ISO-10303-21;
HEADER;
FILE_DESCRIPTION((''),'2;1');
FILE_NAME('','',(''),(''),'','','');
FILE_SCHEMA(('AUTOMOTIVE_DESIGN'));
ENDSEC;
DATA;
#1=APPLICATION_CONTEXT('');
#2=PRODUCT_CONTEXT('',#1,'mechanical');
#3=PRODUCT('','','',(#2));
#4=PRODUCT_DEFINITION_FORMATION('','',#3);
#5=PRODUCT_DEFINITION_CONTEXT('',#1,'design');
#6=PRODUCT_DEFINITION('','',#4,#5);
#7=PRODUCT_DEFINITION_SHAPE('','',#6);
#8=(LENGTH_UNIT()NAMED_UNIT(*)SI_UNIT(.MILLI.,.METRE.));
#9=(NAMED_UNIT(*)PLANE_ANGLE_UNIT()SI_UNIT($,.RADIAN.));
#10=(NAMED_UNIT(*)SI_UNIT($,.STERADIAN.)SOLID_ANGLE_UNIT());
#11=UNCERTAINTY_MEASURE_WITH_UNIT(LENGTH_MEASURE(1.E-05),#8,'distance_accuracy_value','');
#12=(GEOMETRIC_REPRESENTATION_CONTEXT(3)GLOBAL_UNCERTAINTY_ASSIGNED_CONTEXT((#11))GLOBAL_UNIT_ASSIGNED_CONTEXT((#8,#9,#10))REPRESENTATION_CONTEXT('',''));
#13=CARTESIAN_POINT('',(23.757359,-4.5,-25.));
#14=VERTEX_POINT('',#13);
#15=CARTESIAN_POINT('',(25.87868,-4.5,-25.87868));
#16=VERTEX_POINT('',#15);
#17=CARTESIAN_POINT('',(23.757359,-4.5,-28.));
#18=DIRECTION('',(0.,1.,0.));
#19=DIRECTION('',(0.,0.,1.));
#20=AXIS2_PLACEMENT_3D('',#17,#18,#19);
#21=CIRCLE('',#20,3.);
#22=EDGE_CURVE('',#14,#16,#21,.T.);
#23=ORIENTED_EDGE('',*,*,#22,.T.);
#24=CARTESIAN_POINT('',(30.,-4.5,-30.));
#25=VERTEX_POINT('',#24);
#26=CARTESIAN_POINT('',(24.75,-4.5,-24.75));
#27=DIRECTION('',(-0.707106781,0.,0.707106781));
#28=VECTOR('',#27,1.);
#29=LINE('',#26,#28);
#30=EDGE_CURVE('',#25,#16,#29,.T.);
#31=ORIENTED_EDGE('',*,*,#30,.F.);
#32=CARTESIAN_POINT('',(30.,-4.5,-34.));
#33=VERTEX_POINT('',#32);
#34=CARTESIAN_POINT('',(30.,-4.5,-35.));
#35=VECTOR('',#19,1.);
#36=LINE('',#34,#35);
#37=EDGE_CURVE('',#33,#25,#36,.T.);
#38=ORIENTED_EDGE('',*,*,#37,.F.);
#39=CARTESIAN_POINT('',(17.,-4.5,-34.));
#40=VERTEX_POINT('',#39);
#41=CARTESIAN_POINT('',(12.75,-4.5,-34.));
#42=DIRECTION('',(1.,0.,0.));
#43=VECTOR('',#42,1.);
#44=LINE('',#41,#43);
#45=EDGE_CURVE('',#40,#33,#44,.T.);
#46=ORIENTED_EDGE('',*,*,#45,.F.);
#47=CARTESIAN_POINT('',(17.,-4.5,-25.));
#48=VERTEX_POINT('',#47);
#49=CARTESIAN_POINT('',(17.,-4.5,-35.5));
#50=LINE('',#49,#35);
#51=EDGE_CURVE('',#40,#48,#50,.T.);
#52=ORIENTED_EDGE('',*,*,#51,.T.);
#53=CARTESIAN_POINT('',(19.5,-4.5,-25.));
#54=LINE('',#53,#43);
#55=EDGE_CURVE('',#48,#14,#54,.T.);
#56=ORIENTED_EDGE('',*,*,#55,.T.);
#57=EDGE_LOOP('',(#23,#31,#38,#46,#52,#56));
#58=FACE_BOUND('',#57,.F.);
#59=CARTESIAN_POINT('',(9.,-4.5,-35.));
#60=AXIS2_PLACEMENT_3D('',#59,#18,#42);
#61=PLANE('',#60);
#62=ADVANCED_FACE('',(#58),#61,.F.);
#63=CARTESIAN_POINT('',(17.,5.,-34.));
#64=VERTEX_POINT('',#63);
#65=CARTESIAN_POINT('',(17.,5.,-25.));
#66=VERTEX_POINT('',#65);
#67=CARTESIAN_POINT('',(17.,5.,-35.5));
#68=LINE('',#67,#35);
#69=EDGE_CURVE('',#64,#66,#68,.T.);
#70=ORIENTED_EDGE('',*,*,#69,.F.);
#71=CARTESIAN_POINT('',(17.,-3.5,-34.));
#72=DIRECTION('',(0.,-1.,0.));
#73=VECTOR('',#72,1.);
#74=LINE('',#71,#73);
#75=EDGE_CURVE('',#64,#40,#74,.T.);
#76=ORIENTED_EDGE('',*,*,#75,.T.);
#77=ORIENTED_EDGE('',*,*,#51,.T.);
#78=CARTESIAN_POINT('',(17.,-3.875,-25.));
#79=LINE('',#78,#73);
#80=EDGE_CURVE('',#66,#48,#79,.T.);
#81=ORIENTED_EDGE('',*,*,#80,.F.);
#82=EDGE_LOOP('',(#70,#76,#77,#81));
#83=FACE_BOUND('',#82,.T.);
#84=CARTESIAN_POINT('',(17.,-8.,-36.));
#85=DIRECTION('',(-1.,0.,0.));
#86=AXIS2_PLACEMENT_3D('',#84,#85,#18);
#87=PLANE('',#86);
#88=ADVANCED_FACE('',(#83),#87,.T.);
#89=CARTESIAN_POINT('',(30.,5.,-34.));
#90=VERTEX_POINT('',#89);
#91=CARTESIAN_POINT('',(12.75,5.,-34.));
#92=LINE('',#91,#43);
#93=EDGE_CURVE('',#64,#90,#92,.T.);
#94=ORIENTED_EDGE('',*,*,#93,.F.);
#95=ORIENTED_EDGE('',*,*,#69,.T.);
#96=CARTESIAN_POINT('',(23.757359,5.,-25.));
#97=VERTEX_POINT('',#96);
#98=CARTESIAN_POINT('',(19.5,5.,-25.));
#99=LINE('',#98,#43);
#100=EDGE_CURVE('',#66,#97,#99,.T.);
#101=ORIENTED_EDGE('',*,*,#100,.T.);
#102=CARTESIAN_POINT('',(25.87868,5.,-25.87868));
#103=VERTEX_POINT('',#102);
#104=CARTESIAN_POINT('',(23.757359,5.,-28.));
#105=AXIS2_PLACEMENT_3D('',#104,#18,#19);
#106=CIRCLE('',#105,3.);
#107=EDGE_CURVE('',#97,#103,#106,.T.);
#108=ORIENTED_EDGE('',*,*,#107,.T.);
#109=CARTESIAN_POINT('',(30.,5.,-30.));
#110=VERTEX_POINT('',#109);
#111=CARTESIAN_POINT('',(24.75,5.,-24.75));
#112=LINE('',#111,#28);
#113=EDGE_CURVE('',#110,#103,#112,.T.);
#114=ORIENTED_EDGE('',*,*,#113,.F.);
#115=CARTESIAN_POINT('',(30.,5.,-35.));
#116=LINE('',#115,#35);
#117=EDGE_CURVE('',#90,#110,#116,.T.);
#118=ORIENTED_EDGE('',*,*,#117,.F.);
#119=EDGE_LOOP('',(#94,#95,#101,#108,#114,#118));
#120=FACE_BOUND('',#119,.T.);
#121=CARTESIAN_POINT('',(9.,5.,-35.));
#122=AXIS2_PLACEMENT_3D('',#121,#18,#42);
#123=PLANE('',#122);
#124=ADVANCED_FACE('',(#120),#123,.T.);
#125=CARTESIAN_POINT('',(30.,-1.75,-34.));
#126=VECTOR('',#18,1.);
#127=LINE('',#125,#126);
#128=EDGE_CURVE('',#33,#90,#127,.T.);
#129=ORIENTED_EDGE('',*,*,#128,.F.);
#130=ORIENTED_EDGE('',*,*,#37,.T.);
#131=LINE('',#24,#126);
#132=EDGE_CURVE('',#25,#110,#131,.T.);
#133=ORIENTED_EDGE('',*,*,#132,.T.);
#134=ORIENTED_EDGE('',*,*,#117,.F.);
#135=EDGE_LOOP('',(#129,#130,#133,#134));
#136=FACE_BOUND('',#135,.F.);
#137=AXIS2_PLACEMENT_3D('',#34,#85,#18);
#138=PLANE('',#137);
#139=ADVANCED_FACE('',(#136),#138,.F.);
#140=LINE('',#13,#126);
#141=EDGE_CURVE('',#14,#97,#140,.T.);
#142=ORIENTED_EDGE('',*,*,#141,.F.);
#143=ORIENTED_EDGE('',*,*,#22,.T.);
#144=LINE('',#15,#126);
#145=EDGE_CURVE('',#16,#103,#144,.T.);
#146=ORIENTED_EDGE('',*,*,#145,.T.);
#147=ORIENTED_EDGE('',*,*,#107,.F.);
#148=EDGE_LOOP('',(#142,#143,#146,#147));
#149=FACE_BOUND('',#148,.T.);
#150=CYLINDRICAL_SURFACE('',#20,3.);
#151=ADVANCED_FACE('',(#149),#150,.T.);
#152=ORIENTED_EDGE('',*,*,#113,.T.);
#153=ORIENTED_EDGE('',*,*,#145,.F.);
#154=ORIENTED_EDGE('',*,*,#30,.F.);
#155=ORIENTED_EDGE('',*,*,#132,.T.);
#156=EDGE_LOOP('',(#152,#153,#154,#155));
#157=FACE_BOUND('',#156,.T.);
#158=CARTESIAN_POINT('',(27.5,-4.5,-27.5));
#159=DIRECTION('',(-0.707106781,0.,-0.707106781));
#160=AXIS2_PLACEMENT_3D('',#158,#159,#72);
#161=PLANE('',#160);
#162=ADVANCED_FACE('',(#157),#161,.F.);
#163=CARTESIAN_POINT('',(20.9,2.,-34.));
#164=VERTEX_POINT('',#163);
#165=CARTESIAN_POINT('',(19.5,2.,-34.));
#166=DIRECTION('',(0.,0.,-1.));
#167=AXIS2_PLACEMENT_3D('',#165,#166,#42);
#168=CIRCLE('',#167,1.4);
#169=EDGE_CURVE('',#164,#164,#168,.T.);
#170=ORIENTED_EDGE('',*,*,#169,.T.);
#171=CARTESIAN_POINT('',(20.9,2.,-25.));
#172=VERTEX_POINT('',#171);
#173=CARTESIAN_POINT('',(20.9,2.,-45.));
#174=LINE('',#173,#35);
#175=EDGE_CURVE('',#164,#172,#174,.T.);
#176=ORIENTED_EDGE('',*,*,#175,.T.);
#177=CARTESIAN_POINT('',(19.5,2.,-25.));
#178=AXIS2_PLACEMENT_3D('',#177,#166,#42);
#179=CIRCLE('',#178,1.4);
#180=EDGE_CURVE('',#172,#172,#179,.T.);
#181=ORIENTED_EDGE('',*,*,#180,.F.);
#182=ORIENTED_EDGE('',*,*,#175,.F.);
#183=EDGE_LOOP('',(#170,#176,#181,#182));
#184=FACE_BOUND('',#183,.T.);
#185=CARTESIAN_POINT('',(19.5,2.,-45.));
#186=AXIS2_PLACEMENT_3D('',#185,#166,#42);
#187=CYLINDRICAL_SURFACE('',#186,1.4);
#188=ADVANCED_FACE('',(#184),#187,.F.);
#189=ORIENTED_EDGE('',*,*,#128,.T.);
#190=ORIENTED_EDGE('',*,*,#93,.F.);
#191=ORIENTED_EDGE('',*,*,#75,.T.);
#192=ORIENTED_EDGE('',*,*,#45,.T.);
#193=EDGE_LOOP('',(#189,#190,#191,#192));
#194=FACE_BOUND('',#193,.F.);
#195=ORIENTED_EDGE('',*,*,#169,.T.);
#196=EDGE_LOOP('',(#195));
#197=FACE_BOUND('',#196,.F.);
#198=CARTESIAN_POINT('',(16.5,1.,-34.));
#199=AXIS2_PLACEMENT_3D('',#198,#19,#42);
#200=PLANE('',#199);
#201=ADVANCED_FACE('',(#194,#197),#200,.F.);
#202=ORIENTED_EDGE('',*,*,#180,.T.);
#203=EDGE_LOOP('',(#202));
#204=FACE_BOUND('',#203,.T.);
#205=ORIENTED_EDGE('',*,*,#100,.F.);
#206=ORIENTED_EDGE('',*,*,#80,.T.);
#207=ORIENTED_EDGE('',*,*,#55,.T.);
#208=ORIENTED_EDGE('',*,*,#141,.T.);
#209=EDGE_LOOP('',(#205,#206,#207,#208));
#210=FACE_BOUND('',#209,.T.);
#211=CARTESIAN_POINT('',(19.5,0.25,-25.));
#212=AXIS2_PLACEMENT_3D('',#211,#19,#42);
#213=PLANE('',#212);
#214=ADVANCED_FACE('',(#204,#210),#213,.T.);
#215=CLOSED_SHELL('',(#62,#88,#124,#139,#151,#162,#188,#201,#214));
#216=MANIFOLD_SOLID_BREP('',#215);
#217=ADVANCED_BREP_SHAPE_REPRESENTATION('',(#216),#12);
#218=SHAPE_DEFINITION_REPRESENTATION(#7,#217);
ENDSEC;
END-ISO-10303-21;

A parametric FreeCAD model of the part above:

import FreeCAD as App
import Part
import Sketcher

V = App.Vector
Q = App.Units.Quantity


def edges_at(feature, points):
    """Names of the edges that pass closest to the given points."""
    edges = feature.Shape.Edges
    near = lambda p: min(range(len(edges)), key=lambda i: edges[i].distToShape(Part.Vertex(*p))[0])
    return sorted({f"Edge{near(p) + 1}" for p in points})

doc = App.newDocument("Part")
params = doc.addObject("Spreadsheet::Sheet", "Params")
for row, (alias, value) in enumerate([
    ("sketch1_width", "17 mm"),
    ("sketch1_height", "18 mm"),
    ("pad1_length", "16 mm"),
    ("sketch2_diameter", "2.8 mm"),
    ("pad2_length", "30 mm"),
    ("sketch3_width", "33 mm"),
    ("sketch3_height", "16 mm"),
    ("pad3_length", "10 mm"),
    ("sketch4_width", "21 mm"),
    ("sketch4_height", "9.5 mm"),
    ("pad4_length", "10 mm"),
    ("chamfer_size", "5 mm"),
    ("fillet_radius", "3 mm"),
], start=1):
    params.set(f"A{row}", alias)
    params.set(f"B{row}", "=" + value)
    params.setAlias(f"B{row}", alias)

body = doc.addObject("PartDesign::Body", "Body")

# Sketch on XY plane
sketch1 = doc.addObject("Sketcher::SketchObject", "Sketch")
body.addObject(sketch1)
sketch1.AttachmentSupport = (doc.XY_Plane, [""])
sketch1.MapMode = "FlatFace"
sketch1.AttachmentOffset = App.Placement(V(0, 0, -36), App.Rotation())
sketch1.addGeometry([
    Part.LineSegment(V(0, 10, 0), V(0, -8, 0)),
    Part.LineSegment(V(0, -8, 0), V(17, -8, 0)),
    Part.LineSegment(V(17, -8, 0), V(17, 10, 0)),
    Part.LineSegment(V(17, 10, 0), V(0, 10, 0)),
], False)
sketch1.addConstraint([
    Sketcher.Constraint("Coincident", 0, 2, 1, 1),
    Sketcher.Constraint("Coincident", 1, 2, 2, 1),
    Sketcher.Constraint("Coincident", 2, 2, 3, 1),
    Sketcher.Constraint("Coincident", 3, 2, 0, 1),
    Sketcher.Constraint("Vertical", 0),
    Sketcher.Constraint("Horizontal", 1),
    Sketcher.Constraint("Vertical", 2),
    Sketcher.Constraint("Horizontal", 3),
    Sketcher.Constraint("PointOnObject", 0, 2, -2),
    Sketcher.Constraint("DistanceX", 1, 1, 1, 2, Q("17 mm")),
    Sketcher.Constraint("DistanceY", 0, 2, 0, 1, Q("18 mm")),
    Sketcher.Constraint("DistanceY", 0, 2, -1, 1, Q("8 mm")),
])
sketch1.setExpression("Constraints[9]", "Params.sketch1_width")
sketch1.setExpression("Constraints[10]", "Params.sketch1_height")
pad1 = doc.addObject("PartDesign::Pad", "Pad")
body.addObject(pad1)
pad1.Profile = sketch1
pad1.setExpression("Length", "Params.pad1_length")
body2 = doc.addObject("PartDesign::Body", "Body001")

# Sketch on XY plane
sketch2 = doc.addObject("Sketcher::SketchObject", "Sketch001")
body2.addObject(sketch2)
sketch2.AttachmentSupport = (doc.getObject("XY_Plane001"), [""])
sketch2.MapMode = "FlatFace"
sketch2.AttachmentOffset = App.Placement(V(0, 0, -45), App.Rotation())
sketch2.addGeometry(Part.Circle(V(19.5, 2, 0), V(0, 0, 1), 1.4), False)
sketch2.addConstraint([
    Sketcher.Constraint("Diameter", 0, Q("2.8 mm")),
    Sketcher.Constraint("DistanceY", -1, 1, 0, 3, Q("2 mm")),
    Sketcher.Constraint("DistanceX", -1, 1, 0, 3, Q("19.5 mm")),
])
sketch2.setExpression("Constraints[0]", "Params.sketch2_diameter")
pad2 = doc.addObject("PartDesign::Pad", "Pad001")
body2.addObject(pad2)
pad2.Profile = sketch2
pad2.setExpression("Length", "Params.pad2_length")
body3 = doc.addObject("PartDesign::Body", "Body002")

# Sketch on XY plane
sketch3 = doc.addObject("Sketcher::SketchObject", "Sketch002")
body3.addObject(sketch3)
sketch3.AttachmentSupport = (doc.getObject("XY_Plane002"), [""])
sketch3.MapMode = "FlatFace"
sketch3.AttachmentOffset = App.Placement(V(0, 0, -44), App.Rotation())
sketch3.addGeometry([
    Part.LineSegment(V(0, 9, 0), V(0, -7, 0)),
    Part.LineSegment(V(0, -7, 0), V(33, -7, 0)),
    Part.LineSegment(V(33, -7, 0), V(33, 9, 0)),
    Part.LineSegment(V(33, 9, 0), V(0, 9, 0)),
], False)
sketch3.addConstraint([
    Sketcher.Constraint("Coincident", 0, 2, 1, 1),
    Sketcher.Constraint("Coincident", 1, 2, 2, 1),
    Sketcher.Constraint("Coincident", 2, 2, 3, 1),
    Sketcher.Constraint("Coincident", 3, 2, 0, 1),
    Sketcher.Constraint("Vertical", 0),
    Sketcher.Constraint("Horizontal", 1),
    Sketcher.Constraint("Vertical", 2),
    Sketcher.Constraint("Horizontal", 3),
    Sketcher.Constraint("PointOnObject", 0, 2, -2),
    Sketcher.Constraint("DistanceX", 1, 1, 1, 2, Q("33 mm")),
    Sketcher.Constraint("DistanceY", 0, 2, 0, 1, Q("16 mm")),
    Sketcher.Constraint("DistanceY", 0, 2, -1, 1, Q("7 mm")),
])
sketch3.setExpression("Constraints[9]", "Params.sketch3_width")
sketch3.setExpression("Constraints[10]", "Params.sketch3_height")
pad3 = doc.addObject("PartDesign::Pad", "Pad002")
body3.addObject(pad3)
pad3.Profile = sketch3
pad3.setExpression("Length", "Params.pad3_length")
body4 = doc.addObject("PartDesign::Body", "Body003")

# Sketch on XY plane
sketch4 = doc.addObject("Sketcher::SketchObject", "Sketch003")
body4.addObject(sketch4)
sketch4.AttachmentSupport = (doc.getObject("XY_Plane003"), [""])
sketch4.MapMode = "FlatFace"
sketch4.AttachmentOffset = App.Placement(V(0, 0, -42), App.Rotation())
sketch4.addGeometry([
    Part.LineSegment(V(20, 7, 0), V(20, -2.5, 0)),
    Part.LineSegment(V(20, -2.5, 0), V(41, -2.5, 0)),
    Part.LineSegment(V(41, -2.5, 0), V(41, 7, 0)),
    Part.LineSegment(V(41, 7, 0), V(20, 7, 0)),
], False)
sketch4.addConstraint([
    Sketcher.Constraint("Coincident", 0, 2, 1, 1),
    Sketcher.Constraint("Coincident", 1, 2, 2, 1),
    Sketcher.Constraint("Coincident", 2, 2, 3, 1),
    Sketcher.Constraint("Coincident", 3, 2, 0, 1),
    Sketcher.Constraint("Vertical", 0),
    Sketcher.Constraint("Horizontal", 1),
    Sketcher.Constraint("Vertical", 2),
    Sketcher.Constraint("Horizontal", 3),
    Sketcher.Constraint("DistanceX", 1, 1, 1, 2, Q("21 mm")),
    Sketcher.Constraint("DistanceY", 0, 2, 0, 1, Q("9.5 mm")),
    Sketcher.Constraint("DistanceX", -1, 1, 0, 2, Q("20 mm")),
    Sketcher.Constraint("DistanceY", -1, 1, 2, 2, Q("7 mm")),
])
sketch4.setExpression("Constraints[8]", "Params.sketch4_width")
sketch4.setExpression("Constraints[9]", "Params.sketch4_height")
pad4 = doc.addObject("PartDesign::Pad", "Pad003")
body4.addObject(pad4)
pad4.Profile = sketch4
pad4.setExpression("Length", "Params.pad4_length")
doc.recompute()

chamfer = doc.addObject("PartDesign::Chamfer", "Chamfer")
body4.addObject(chamfer)
chamfer.Base = (pad4, edges_at(pad4, [(20, 2.25, -32), (41, 2.25, -32)]))
chamfer.setExpression("Size", "Params.chamfer_size")
doc.recompute()

fillet = doc.addObject("PartDesign::Fillet", "Fillet")
body4.addObject(fillet)
fillet.Base = (chamfer, edges_at(chamfer, [(25, 2.25, -32), (36, 2.25, -32)]))
fillet.setExpression("Radius", "Params.fillet_radius")
body5 = doc.addObject("PartDesign::Body", "Body004")
doc.recompute()

body4.Placement = App.Placement(V(-11, -2, 7), App.Rotation(V(0, 0, 1), 0))
boolean = doc.addObject("PartDesign::Boolean", "Boolean")
body5.addObject(boolean)
boolean.Type = "Fuse"
boolean.addObjects([body4])
doc.recompute()

boolean2 = doc.addObject("PartDesign::Boolean", "Boolean001")
body5.addObject(boolean2)
boolean2.Type = "Cut"
boolean2.addObjects([body3])
doc.recompute()

boolean3 = doc.addObject("PartDesign::Boolean", "Boolean002")
body5.addObject(boolean3)
boolean3.Type = "Cut"
boolean3.addObjects([body2])
doc.recompute()

boolean4 = doc.addObject("PartDesign::Boolean", "Boolean003")
body5.addObject(boolean4)
boolean4.Type = "Cut"
boolean4.addObjects([body])

doc.recompute()
